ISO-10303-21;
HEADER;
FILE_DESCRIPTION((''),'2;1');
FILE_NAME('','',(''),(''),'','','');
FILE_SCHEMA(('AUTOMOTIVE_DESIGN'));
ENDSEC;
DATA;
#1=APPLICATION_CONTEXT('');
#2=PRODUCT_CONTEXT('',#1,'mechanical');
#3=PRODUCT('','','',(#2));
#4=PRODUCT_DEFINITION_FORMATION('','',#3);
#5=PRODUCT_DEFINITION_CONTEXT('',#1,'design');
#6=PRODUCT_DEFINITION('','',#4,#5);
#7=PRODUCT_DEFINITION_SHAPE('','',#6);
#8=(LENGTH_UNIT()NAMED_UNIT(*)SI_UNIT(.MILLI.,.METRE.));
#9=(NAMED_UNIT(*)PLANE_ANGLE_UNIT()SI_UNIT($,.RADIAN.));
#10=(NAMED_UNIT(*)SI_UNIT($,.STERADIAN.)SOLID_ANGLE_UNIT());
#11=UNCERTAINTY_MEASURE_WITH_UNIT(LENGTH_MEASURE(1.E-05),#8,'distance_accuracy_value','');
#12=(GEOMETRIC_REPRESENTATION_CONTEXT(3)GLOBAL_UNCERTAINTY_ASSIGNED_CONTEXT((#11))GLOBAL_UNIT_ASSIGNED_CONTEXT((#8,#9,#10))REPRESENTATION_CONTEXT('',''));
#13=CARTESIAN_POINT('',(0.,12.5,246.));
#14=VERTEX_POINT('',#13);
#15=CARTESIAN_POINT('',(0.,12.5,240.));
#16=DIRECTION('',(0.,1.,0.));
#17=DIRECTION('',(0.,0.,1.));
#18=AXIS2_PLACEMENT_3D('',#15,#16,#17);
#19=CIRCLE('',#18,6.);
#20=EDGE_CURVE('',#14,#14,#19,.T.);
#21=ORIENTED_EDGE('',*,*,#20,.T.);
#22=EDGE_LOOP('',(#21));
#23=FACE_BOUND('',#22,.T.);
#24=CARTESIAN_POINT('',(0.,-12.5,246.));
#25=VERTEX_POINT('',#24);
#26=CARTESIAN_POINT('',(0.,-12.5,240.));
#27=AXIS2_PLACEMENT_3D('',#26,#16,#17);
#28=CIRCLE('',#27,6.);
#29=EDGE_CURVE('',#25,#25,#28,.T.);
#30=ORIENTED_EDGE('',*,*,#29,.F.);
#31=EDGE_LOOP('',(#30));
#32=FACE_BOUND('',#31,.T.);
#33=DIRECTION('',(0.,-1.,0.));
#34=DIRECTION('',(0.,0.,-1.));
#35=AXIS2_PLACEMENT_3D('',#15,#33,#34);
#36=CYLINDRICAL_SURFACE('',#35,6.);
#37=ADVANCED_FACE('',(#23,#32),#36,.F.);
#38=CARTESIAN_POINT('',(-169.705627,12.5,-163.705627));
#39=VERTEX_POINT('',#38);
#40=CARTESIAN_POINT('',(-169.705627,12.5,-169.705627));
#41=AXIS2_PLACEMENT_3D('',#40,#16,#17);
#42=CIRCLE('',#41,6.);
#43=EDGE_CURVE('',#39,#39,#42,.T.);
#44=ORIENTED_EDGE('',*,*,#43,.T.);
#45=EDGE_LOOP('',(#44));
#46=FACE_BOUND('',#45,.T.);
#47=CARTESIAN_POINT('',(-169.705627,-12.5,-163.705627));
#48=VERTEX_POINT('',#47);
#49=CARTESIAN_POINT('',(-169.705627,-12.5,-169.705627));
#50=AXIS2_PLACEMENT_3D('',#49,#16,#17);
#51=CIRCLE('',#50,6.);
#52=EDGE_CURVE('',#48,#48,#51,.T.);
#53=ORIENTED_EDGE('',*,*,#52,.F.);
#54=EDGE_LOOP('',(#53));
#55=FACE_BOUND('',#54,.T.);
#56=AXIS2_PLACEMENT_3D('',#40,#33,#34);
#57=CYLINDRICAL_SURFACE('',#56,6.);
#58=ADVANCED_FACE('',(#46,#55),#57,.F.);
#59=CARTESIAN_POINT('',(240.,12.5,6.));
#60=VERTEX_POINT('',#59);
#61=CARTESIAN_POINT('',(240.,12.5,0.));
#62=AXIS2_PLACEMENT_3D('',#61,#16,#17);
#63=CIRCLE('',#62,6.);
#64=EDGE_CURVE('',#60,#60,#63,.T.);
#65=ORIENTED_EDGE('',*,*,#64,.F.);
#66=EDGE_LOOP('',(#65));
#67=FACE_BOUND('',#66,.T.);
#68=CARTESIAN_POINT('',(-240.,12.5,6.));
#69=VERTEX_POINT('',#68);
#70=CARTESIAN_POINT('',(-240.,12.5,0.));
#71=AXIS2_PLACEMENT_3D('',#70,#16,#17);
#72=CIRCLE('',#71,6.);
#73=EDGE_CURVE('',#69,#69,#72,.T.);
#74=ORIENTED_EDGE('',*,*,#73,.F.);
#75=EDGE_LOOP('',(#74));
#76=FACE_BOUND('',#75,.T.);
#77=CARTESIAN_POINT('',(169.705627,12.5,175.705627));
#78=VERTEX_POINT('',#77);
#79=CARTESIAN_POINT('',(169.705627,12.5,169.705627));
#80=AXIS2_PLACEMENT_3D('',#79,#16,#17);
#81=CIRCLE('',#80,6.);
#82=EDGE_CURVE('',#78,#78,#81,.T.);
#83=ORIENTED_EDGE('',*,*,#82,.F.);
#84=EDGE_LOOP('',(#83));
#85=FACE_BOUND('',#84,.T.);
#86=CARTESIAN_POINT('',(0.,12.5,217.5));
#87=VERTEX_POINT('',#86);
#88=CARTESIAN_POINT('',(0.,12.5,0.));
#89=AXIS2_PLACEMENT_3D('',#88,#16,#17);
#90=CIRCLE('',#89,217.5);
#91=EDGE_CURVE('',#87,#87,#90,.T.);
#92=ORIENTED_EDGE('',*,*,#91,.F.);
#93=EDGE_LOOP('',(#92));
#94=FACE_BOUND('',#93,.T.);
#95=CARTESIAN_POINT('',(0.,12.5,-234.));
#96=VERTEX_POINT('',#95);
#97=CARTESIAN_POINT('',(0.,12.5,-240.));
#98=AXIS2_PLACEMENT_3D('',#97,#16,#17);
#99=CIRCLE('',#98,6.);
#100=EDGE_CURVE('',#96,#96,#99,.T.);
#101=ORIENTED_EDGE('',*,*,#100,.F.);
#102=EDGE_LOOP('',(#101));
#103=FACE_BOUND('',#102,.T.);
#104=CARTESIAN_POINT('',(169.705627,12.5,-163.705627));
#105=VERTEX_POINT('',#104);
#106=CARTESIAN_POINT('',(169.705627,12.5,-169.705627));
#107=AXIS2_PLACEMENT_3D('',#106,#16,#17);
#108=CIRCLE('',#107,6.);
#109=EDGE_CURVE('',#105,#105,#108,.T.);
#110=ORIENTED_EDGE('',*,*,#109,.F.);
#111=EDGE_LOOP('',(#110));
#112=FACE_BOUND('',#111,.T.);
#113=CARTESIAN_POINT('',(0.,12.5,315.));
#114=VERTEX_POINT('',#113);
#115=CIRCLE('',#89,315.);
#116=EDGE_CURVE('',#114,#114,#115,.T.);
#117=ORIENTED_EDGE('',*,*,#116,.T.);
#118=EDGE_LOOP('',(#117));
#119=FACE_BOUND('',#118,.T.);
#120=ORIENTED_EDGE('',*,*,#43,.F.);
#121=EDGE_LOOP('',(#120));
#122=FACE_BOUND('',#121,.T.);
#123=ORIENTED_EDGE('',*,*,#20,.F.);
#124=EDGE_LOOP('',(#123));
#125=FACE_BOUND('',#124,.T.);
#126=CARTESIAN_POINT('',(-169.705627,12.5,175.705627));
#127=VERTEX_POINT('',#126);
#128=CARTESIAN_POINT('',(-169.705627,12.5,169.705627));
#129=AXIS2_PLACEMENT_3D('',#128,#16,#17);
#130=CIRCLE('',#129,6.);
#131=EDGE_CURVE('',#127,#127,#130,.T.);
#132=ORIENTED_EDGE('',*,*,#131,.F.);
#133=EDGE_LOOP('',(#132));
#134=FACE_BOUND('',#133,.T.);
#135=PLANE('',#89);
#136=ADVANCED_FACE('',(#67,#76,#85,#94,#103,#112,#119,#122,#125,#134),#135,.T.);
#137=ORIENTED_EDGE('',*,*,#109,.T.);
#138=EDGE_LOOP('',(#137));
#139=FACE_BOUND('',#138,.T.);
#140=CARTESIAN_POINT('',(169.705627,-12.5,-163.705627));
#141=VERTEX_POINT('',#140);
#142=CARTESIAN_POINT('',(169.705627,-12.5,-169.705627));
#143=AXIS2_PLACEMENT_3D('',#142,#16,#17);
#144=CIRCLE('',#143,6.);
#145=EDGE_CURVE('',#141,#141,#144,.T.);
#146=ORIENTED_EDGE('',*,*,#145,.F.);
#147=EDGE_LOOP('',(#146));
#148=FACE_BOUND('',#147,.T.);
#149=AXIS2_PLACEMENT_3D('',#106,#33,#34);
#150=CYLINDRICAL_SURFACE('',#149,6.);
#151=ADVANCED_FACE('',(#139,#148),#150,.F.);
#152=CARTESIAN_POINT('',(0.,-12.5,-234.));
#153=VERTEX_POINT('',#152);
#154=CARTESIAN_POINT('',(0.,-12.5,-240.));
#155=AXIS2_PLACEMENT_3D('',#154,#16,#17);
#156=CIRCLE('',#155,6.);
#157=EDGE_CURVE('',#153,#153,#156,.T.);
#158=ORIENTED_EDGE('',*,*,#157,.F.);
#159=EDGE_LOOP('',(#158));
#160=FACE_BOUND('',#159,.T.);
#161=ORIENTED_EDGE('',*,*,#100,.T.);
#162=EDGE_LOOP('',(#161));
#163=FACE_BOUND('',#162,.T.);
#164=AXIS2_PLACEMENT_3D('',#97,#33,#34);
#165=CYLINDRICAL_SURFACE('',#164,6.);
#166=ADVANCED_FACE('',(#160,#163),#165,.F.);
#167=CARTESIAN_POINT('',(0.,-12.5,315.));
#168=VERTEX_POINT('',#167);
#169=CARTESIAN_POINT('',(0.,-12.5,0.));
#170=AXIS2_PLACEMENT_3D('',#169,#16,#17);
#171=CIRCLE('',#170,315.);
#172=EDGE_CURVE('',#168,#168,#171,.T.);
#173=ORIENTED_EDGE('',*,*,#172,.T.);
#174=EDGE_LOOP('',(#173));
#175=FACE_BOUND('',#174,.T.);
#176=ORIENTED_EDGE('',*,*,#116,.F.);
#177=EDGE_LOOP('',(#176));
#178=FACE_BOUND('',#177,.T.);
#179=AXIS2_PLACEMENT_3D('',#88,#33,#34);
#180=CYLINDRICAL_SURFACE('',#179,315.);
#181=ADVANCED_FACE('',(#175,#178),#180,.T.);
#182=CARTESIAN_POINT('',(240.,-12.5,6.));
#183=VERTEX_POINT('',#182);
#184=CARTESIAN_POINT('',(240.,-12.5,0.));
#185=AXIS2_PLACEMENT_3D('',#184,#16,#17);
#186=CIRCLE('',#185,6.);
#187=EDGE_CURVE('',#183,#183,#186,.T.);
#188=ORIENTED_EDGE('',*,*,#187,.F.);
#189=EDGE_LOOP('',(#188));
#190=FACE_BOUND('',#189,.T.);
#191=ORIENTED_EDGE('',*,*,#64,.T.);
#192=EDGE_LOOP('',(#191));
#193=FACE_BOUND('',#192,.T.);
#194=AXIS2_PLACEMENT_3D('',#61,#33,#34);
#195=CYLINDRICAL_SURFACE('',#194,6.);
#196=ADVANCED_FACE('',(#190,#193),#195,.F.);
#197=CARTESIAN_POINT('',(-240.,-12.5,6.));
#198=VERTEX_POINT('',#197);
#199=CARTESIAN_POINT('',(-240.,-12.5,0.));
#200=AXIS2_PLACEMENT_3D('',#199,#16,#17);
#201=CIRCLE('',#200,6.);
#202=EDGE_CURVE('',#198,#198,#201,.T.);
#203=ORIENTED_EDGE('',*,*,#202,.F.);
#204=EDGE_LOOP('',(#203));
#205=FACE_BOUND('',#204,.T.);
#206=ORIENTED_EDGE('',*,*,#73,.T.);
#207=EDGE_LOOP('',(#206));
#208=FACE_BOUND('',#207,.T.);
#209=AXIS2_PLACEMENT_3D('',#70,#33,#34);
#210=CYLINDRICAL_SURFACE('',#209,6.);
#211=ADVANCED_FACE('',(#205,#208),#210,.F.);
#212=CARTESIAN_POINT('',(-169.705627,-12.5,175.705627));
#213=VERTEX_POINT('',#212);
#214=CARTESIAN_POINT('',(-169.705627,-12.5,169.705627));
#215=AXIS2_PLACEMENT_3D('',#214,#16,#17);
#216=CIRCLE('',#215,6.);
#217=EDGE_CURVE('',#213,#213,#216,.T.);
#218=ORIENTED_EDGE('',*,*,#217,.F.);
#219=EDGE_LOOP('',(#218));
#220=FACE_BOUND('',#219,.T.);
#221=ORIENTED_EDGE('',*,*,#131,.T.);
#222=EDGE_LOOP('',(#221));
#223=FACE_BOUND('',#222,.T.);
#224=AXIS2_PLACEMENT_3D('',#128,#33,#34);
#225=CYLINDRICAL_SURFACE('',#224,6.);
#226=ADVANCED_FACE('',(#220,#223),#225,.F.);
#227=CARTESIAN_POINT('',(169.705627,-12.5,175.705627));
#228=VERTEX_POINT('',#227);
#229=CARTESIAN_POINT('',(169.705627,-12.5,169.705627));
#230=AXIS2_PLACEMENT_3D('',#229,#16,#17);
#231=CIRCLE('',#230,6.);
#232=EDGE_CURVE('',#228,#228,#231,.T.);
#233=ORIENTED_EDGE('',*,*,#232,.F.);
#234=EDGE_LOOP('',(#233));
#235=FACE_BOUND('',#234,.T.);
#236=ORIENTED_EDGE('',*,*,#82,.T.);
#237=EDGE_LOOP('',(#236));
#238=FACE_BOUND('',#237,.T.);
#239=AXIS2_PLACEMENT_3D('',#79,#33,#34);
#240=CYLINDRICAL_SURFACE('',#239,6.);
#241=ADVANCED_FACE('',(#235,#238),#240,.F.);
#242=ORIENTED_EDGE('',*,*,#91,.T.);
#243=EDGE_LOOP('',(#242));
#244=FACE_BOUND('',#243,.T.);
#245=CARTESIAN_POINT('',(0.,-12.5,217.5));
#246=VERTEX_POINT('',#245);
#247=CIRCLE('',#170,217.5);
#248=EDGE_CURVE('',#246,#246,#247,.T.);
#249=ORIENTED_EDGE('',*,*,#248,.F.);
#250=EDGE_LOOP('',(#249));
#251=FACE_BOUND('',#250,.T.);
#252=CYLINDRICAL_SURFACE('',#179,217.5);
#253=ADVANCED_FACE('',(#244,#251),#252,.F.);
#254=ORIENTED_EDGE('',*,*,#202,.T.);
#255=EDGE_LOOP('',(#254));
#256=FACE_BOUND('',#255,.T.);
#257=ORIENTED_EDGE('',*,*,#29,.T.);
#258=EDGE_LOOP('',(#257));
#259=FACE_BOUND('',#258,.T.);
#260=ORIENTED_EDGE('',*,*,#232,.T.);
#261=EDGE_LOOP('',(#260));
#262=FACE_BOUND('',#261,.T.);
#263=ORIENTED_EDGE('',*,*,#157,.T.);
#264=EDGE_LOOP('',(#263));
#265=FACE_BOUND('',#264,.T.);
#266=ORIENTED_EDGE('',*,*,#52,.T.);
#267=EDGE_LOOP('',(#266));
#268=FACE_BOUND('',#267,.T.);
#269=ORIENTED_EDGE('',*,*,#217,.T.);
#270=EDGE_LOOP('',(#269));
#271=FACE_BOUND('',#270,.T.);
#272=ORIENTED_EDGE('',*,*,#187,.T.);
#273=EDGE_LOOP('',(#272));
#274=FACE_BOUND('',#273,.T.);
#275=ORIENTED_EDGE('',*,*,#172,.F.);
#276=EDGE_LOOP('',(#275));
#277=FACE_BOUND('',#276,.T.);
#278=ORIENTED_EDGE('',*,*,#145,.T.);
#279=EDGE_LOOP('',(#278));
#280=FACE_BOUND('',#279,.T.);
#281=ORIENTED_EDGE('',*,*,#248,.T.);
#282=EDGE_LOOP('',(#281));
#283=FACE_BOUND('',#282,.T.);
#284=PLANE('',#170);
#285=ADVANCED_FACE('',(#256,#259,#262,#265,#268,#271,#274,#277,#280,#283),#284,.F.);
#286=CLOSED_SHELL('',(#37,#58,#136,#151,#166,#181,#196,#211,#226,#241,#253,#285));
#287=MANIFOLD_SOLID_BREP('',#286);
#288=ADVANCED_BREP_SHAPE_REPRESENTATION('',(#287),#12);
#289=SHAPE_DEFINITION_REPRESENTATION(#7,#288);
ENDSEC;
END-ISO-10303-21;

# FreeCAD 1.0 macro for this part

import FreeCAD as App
import Part
import Sketcher
Q = App.Units.Quantity

doc = App.newDocument("Part")
body = doc.addObject("PartDesign::Body", "Body")

# Sketch on XZ plane
sketch1 = body.newObject("Sketcher::SketchObject", "Sketch")
sketch1.AttachmentSupport = (doc.getObject("XZ_Plane"), [""])
sketch1.MapMode = "FlatFace"
sketch1.addGeometry([
    Part.Circle(App.Vector(0, 0, 0), App.Vector(0, 0, 1), 315),  # 0
    Part.Circle(App.Vector(-170, -170, 0), App.Vector(0, 0, 1), 6),  # 1
    Part.Circle(App.Vector(0, -240, 0), App.Vector(0, 0, 1), 6),  # 2
    Part.Circle(App.Vector(-240, 0, 0), App.Vector(0, 0, 1), 6),  # 3
    Part.Circle(App.Vector(-170, 170, 0), App.Vector(0, 0, 1), 6),  # 4
    Part.Circle(App.Vector(170, -170, 0), App.Vector(0, 0, 1), 6),  # 5
    Part.Circle(App.Vector(240, 0, 0), App.Vector(0, 0, 1), 6),  # 6
    Part.Circle(App.Vector(0, 0, 0), App.Vector(0, 0, 1), 218),  # 7
    Part.Circle(App.Vector(0, 240, 0), App.Vector(0, 0, 1), 6),  # 8
    Part.Circle(App.Vector(170, 170, 0), App.Vector(0, 0, 1), 6),  # 9
], False)
sketch1.addConstraint([
    Sketcher.Constraint("Coincident", 0, 3, -1, 1),
    Sketcher.Constraint("Coincident", 7, 3, -1, 1),
    Sketcher.Constraint("Equal", 1, 2),
    Sketcher.Constraint("Equal", 2, 3),
    Sketcher.Constraint("Equal", 3, 4),
    Sketcher.Constraint("Equal", 4, 5),
    Sketcher.Constraint("Equal", 5, 6),
    Sketcher.Constraint("Equal", 6, 8),
    Sketcher.Constraint("Equal", 8, 9),
    Sketcher.Constraint("Symmetric", 4, 3, 5, 3, -1, 1),
    Sketcher.Constraint("Symmetric", 3, 3, 6, 3, -1, 1),
    Sketcher.Constraint("Symmetric", 2, 3, 8, 3, -1, 1),
    Sketcher.Constraint("Symmetric", 1, 3, 9, 3, -1, 1),
    Sketcher.Constraint("Symmetric", 1, 3, 5, 3, -2),
    Sketcher.Constraint("PointOnObject", 2, 3, -2),
    Sketcher.Constraint("PointOnObject", 3, 3, -1),
    Sketcher.Constraint("Diameter", 0, Q("630 mm")),
    Sketcher.Constraint("Diameter", 1, Q("12 mm")),
    Sketcher.Constraint("Diameter", 7, Q("435 mm")),
    Sketcher.Constraint("DistanceY", 2, 3, -1, 1, Q("240 mm")),
    Sketcher.Constraint("DistanceX", 3, 3, -1, 1, Q("240 mm")),
    Sketcher.Constraint("DistanceX", 1, 3, -1, 1, Q("169.705627 mm")),
    Sketcher.Constraint("DistanceY", 1, 3, -1, 1, Q("169.705627 mm")),
])
pad1 = body.newObject("PartDesign::Pad", "Pad")
pad1.Profile = sketch1
pad1.Length = 25
pad1.Midplane = True

doc.recompute()
